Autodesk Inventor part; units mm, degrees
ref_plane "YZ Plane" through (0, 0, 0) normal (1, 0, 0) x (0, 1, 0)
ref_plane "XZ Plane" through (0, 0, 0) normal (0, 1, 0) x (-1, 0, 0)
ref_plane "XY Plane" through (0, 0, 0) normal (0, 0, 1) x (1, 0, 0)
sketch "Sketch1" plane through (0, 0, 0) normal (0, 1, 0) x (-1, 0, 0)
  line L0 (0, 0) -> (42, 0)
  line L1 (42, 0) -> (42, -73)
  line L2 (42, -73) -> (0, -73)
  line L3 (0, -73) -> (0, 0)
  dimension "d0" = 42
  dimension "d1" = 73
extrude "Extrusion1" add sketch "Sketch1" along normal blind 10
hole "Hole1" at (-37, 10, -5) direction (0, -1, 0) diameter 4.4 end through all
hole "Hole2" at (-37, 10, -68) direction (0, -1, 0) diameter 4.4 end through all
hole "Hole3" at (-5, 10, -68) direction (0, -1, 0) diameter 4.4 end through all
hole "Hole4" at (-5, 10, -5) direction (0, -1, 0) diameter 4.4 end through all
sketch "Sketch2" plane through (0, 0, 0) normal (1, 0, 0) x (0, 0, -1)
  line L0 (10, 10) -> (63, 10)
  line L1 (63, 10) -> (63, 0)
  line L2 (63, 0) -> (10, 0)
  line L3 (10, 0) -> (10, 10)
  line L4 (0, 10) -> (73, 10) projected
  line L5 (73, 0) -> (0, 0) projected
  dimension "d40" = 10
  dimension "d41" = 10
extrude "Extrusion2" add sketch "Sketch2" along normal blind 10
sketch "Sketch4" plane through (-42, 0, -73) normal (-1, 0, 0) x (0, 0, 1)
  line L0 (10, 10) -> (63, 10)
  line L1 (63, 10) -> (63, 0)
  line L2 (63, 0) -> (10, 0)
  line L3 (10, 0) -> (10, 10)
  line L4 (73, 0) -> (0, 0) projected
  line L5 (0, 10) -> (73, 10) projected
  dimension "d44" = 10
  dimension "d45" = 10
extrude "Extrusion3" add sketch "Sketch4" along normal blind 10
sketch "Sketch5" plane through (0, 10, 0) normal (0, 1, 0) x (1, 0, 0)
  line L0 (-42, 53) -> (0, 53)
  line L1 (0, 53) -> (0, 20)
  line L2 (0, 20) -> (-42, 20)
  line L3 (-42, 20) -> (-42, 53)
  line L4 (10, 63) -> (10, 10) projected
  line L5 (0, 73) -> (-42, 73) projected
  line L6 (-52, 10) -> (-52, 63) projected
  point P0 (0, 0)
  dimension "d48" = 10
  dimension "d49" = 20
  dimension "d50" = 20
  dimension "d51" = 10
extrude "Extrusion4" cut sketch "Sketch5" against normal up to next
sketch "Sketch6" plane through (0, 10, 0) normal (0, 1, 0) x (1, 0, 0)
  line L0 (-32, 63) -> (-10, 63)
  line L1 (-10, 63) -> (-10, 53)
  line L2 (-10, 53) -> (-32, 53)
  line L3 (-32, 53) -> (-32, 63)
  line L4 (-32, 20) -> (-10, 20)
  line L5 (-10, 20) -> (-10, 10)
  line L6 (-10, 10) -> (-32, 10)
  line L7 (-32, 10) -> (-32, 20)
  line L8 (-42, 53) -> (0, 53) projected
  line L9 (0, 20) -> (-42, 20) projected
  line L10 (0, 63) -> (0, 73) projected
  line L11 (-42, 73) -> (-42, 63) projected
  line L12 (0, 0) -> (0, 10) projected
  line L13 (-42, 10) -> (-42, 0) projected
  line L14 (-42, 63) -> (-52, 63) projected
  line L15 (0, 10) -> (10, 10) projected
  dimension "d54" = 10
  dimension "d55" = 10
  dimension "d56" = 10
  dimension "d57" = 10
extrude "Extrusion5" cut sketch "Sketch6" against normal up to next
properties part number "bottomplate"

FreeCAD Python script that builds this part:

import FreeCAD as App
import Part
import Sketcher

V = App.Vector
Q = App.Units.Quantity

doc = App.newDocument("Part")
body = doc.addObject("PartDesign::Body", "Body")

sketch1 = body.newObject("Sketcher::SketchObject", "Sketch")
sketch1.AttachmentSupport = (doc.getObject("XZ_Plane"), [""])
sketch1.MapMode = "FlatFace"
sketch1.addGeometry(Part.LineSegment(V(-42, 0, 0), V(0, 0, 0)), False)
sketch1.addGeometry(Part.LineSegment(V(0, 0, 0), V(0, -73, 0)), False)
sketch1.addGeometry(Part.LineSegment(V(0, -73, 0), V(-42, -73, 0)), False)
sketch1.addGeometry(Part.LineSegment(V(-42, -73, 0), V(-42, 0, 0)), False)
sketch1.addConstraint(Sketcher.Constraint("Coincident", 0, 2, 1, 1))
sketch1.addConstraint(Sketcher.Constraint("Coincident", 1, 2, 2, 1))
sketch1.addConstraint(Sketcher.Constraint("Coincident", 2, 2, 3, 1))
sketch1.addConstraint(Sketcher.Constraint("Coincident", 3, 2, 0, 1))
sketch1.addConstraint(Sketcher.Constraint("Horizontal", 0))
sketch1.addConstraint(Sketcher.Constraint("Vertical", 1))
sketch1.addConstraint(Sketcher.Constraint("Horizontal", 2))
sketch1.addConstraint(Sketcher.Constraint("Vertical", 3))
sketch1.addConstraint(Sketcher.Constraint("Coincident", 0, 2, -1, 1))
sketch1.addConstraint(Sketcher.Constraint("DistanceX", 0, 1, 0, 2, Q("42 mm")))
sketch1.addConstraint(Sketcher.Constraint("DistanceY", 1, 2, 1, 1, Q("73 mm")))
pad1 = body.newObject("PartDesign::Pad", "Pad")
pad1.Profile = sketch1
pad1.Length = 10
pad1.Reversed = True

sketch2 = body.newObject("Sketcher::SketchObject", "Sketch001")
sketch2.AttachmentSupport = (doc.getObject("XZ_Plane"), [""])
sketch2.MapMode = "FlatFace"
sketch2.AttachmentOffset = App.Placement(V(0, 0, -10), App.Rotation())
sketch2.addGeometry(Part.Circle(V(-37, -5, 0), V(0, 0, 1), 2.2), False)
sketch2.addConstraint(Sketcher.Constraint("Diameter", 0, Q("4.4 mm")))
sketch2.addConstraint(Sketcher.Constraint("DistanceX", 0, 3, -1, 1, Q("37 mm")))
sketch2.addConstraint(Sketcher.Constraint("DistanceY", 0, 3, -1, 1, Q("5 mm")))
doc.recompute()
hole = body.newObject("PartDesign::Hole", "Hole")
hole.Profile = sketch2
hole.ThreadType = "None"
hole.Diameter = 4.4
hole.DepthType = "ThroughAll"
hole.Reversed = True

sketch3 = body.newObject("Sketcher::SketchObject", "Sketch002")
sketch3.AttachmentSupport = (doc.getObject("XZ_Plane"), [""])
sketch3.MapMode = "FlatFace"
sketch3.AttachmentOffset = App.Placement(V(0, 0, -10), App.Rotation())
sketch3.addGeometry(Part.Circle(V(-37, -68, 0), V(0, 0, 1), 2.2), False)
sketch3.addConstraint(Sketcher.Constraint("Diameter", 0, Q("4.4 mm")))
sketch3.addConstraint(Sketcher.Constraint("DistanceX", 0, 3, -1, 1, Q("37 mm")))
sketch3.addConstraint(Sketcher.Constraint("DistanceY", 0, 3, -1, 1, Q("68 mm")))
doc.recompute()
hole2 = body.newObject("PartDesign::Hole", "Hole001")
hole2.Profile = sketch3
hole2.ThreadType = "None"
hole2.Diameter = 4.4
hole2.DepthType = "ThroughAll"
hole2.Reversed = True

sketch4 = body.newObject("Sketcher::SketchObject", "Sketch003")
sketch4.AttachmentSupport = (doc.getObject("XZ_Plane"), [""])
sketch4.MapMode = "FlatFace"
sketch4.AttachmentOffset = App.Placement(V(0, 0, -10), App.Rotation())
sketch4.addGeometry(Part.Circle(V(-5, -68, 0), V(0, 0, 1), 2.2), False)
sketch4.addConstraint(Sketcher.Constraint("Diameter", 0, Q("4.4 mm")))
sketch4.addConstraint(Sketcher.Constraint("DistanceX", 0, 3, -1, 1, Q("5 mm")))
sketch4.addConstraint(Sketcher.Constraint("DistanceY", 0, 3, -1, 1, Q("68 mm")))
doc.recompute()
hole3 = body.newObject("PartDesign::Hole", "Hole002")
hole3.Profile = sketch4
hole3.ThreadType = "None"
hole3.Diameter = 4.4
hole3.DepthType = "ThroughAll"
hole3.Reversed = True

sketch5 = body.newObject("Sketcher::SketchObject", "Sketch004")
sketch5.AttachmentSupport = (doc.getObject("XZ_Plane"), [""])
sketch5.MapMode = "FlatFace"
sketch5.AttachmentOffset = App.Placement(V(0, 0, -10), App.Rotation())
sketch5.addGeometry(Part.Circle(V(-5, -5, 0), V(0, 0, 1), 2.2), False)
sketch5.addConstraint(Sketcher.Constraint("Diameter", 0, Q("4.4 mm")))
sketch5.addConstraint(Sketcher.Constraint("DistanceX", 0, 3, -1, 1, Q("5 mm")))
sketch5.addConstraint(Sketcher.Constraint("DistanceY", 0, 3, -1, 1, Q("5 mm")))
doc.recompute()
hole4 = body.newObject("PartDesign::Hole", "Hole003")
hole4.Profile = sketch5
hole4.ThreadType = "None"
hole4.Diameter = 4.4
hole4.DepthType = "ThroughAll"
hole4.Reversed = True

sketch6 = body.newObject("Sketcher::SketchObject", "Sketch005")
sketch6.AttachmentSupport = (doc.getObject("YZ_Plane"), [""])
sketch6.MapMode = "FlatFace"
sketch6.addGeometry(Part.LineSegment(V(10, -63, 0), V(10, -10, 0)), False)
sketch6.addGeometry(Part.LineSegment(V(10, -10, 0), V(0, -10, 0)), False)
sketch6.addGeometry(Part.LineSegment(V(0, -10, 0), V(0, -63, 0)), False)
sketch6.addGeometry(Part.LineSegment(V(0, -63, 0), V(10, -63, 0)), False)
sketch6.addConstraint(Sketcher.Constraint("Coincident", 0, 2, 1, 1))
sketch6.addConstraint(Sketcher.Constraint("Coincident", 1, 2, 2, 1))
sketch6.addConstraint(Sketcher.Constraint("Coincident", 2, 2, 3, 1))
sketch6.addConstraint(Sketcher.Constraint("Coincident", 3, 2, 0, 1))
sketch6.addConstraint(Sketcher.Constraint("Vertical", 0))
sketch6.addConstraint(Sketcher.Constraint("Horizontal", 1))
sketch6.addConstraint(Sketcher.Constraint("Vertical", 2))
sketch6.addConstraint(Sketcher.Constraint("Horizontal", 3))
sketch6.addConstraint(Sketcher.Constraint("PointOnObject", 1, 2, -2))
sketch6.addConstraint(Sketcher.Constraint("DistanceX", 1, 2, 1, 1, Q("10 mm")))
sketch6.addConstraint(Sketcher.Constraint("DistanceY", 0, 2, -1, 1, Q("10 mm")))
sketch6.addConstraint(Sketcher.Constraint("DistanceY", 0, 1, 0, 2, Q("53 mm")))
pad2 = body.newObject("PartDesign::Pad", "Pad001")
pad2.Profile = sketch6
pad2.Length = 10

sketch7 = body.newObject("Sketcher::SketchObject", "Sketch006")
sketch7.AttachmentSupport = (doc.getObject("YZ_Plane"), [""])
sketch7.MapMode = "FlatFace"
sketch7.AttachmentOffset = App.Placement(V(0, 0, -42), App.Rotation())
sketch7.addGeometry(Part.LineSegment(V(10, -10, 0), V(10, -63, 0)), False)
sketch7.addGeometry(Part.LineSegment(V(10, -63, 0), V(0, -63, 0)), False)
sketch7.addGeometry(Part.LineSegment(V(0, -63, 0), V(0, -10, 0)), False)
sketch7.addGeometry(Part.LineSegment(V(0, -10, 0), V(10, -10, 0)), False)
sketch7.addConstraint(Sketcher.Constraint("Coincident", 0, 2, 1, 1))
sketch7.addConstraint(Sketcher.Constraint("Coincident", 1, 2, 2, 1))
sketch7.addConstraint(Sketcher.Constraint("Coincident", 2, 2, 3, 1))
sketch7.addConstraint(Sketcher.Constraint("Coincident", 3, 2, 0, 1))
sketch7.addConstraint(Sketcher.Constraint("Vertical", 0))
sketch7.addConstraint(Sketcher.Constraint("Horizontal", 1))
sketch7.addConstraint(Sketcher.Constraint("Vertical", 2))
sketch7.addConstraint(Sketcher.Constraint("Horizontal", 3))
sketch7.addConstraint(Sketcher.Constraint("PointOnObject", 1, 2, -2))
sketch7.addConstraint(Sketcher.Constraint("DistanceX", 1, 2, 1, 1, Q("10 mm")))
sketch7.addConstraint(Sketcher.Constraint("DistanceY", 2, 2, -1, 1, Q("10 mm")))
sketch7.addConstraint(Sketcher.Constraint("DistanceY", 0, 2, 0, 1, Q("53 mm")))
pad3 = body.newObject("PartDesign::Pad", "Pad002")
pad3.Profile = sketch7
pad3.Length = 10
pad3.Reversed = True

sketch8 = body.newObject("Sketcher::SketchObject", "Sketch007")
sketch8.AttachmentSupport = (doc.getObject("XZ_Plane"), [""])
sketch8.MapMode = "FlatFace"
sketch8.AttachmentOffset = App.Placement(V(0, 0, -10), App.Rotation())
sketch8.addGeometry(Part.LineSegment(V(0, -53, 0), V(-42, -53, 0)), False)
sketch8.addGeometry(Part.LineSegment(V(-42, -53, 0), V(-42, -20, 0)), False)
sketch8.addGeometry(Part.LineSegment(V(-42, -20, 0), V(0, -20, 0)), False)
sketch8.addGeometry(Part.LineSegment(V(0, -20, 0), V(0, -53, 0)), False)
sketch8.addConstraint(Sketcher.Constraint("Coincident", 0, 2, 1, 1))
sketch8.addConstraint(Sketcher.Constraint("Coincident", 1, 2, 2, 1))
sketch8.addConstraint(Sketcher.Constraint("Coincident", 2, 2, 3, 1))
sketch8.addConstraint(Sketcher.Constraint("Coincident", 3, 2, 0, 1))
sketch8.addConstraint(Sketcher.Constraint("Horizontal", 0))
sketch8.addConstraint(Sketcher.Constraint("Vertical", 1))
sketch8.addConstraint(Sketcher.Constraint("Horizontal", 2))
sketch8.addConstraint(Sketcher.Constraint("Vertical", 3))
sketch8.addConstraint(Sketcher.Constraint("PointOnObject", 2, 2, -2))
sketch8.addConstraint(Sketcher.Constraint("DistanceY", 1, 2, -1, 1, Q("20 mm")))
sketch8.addConstraint(Sketcher.Constraint("DistanceX", 0, 2, 0, 1, Q("42 mm")))
sketch8.addConstraint(Sketcher.Constraint("DistanceY", 1, 1, 1, 2, Q("33 mm")))
pocket1 = body.newObject("PartDesign::Pocket", "Pocket")
pocket1.Profile = sketch8
pocket1.Type = "UpToFirst"
pocket1.Reversed = True

sketch9 = body.newObject("Sketcher::SketchObject", "Sketch008")
sketch9.AttachmentSupport = (doc.getObject("XZ_Plane"), [""])
sketch9.MapMode = "FlatFace"
sketch9.AttachmentOffset = App.Placement(V(0, 0, -10), App.Rotation())
sketch9.addGeometry(Part.LineSegment(V(-10, -63, 0), V(-32, -63, 0)), False)
sketch9.addGeometry(Part.LineSegment(V(-32, -63, 0), V(-32, -53, 0)), False)
sketch9.addGeometry(Part.LineSegment(V(-32, -53, 0), V(-10, -53, 0)), False)
sketch9.addGeometry(Part.LineSegment(V(-10, -53, 0), V(-10, -63, 0)), False)
sketch9.addGeometry(Part.LineSegment(V(-10, -20, 0), V(-32, -20, 0)), False)
sketch9.addGeometry(Part.LineSegment(V(-32, -20, 0), V(-32, -10, 0)), False)
sketch9.addGeometry(Part.LineSegment(V(-32, -10, 0), V(-10, -10, 0)), False)
sketch9.addGeometry(Part.LineSegment(V(-10, -10, 0), V(-10, -20, 0)), False)
sketch9.addConstraint(Sketcher.Constraint("Coincident", 0, 2, 1, 1))
sketch9.addConstraint(Sketcher.Constraint("Coincident", 1, 2, 2, 1))
sketch9.addConstraint(Sketcher.Constraint("Coincident", 2, 2, 3, 1))
sketch9.addConstraint(Sketcher.Constraint("Coincident", 3, 2, 0, 1))
sketch9.addConstraint(Sketcher.Constraint("Coincident", 4, 2, 5, 1))
sketch9.addConstraint(Sketcher.Constraint("Coincident", 5, 2, 6, 1))
sketch9.addConstraint(Sketcher.Constraint("Coincident", 6, 2, 7, 1))
sketch9.addConstraint(Sketcher.Constraint("Coincident", 7, 2, 4, 1))
sketch9.addConstraint(Sketcher.Constraint("Horizontal", 0))
sketch9.addConstraint(Sketcher.Constraint("Vertical", 1))
sketch9.addConstraint(Sketcher.Constraint("Horizontal", 2))
sketch9.addConstraint(Sketcher.Constraint("Vertical", 3))
sketch9.addConstraint(Sketcher.Constraint("Horizontal", 4))
sketch9.addConstraint(Sketcher.Constraint("Vertical", 5))
sketch9.addConstraint(Sketcher.Constraint("Horizontal", 6))
sketch9.addConstraint(Sketcher.Constraint("Vertical", 7))
sketch9.addConstraint(Sketcher.Constraint("Vertical", 1, 2, 4, 2))
sketch9.addConstraint(Sketcher.Constraint("Vertical", 3, 2, 6, 2))
sketch9.addConstraint(Sketcher.Constraint("Equal", 3, 5))
sketch9.addConstraint(Sketcher.Constraint("DistanceY", 1, 1, 1, 2, Q("10 mm")))
sketch9.addConstraint(Sketcher.Constraint("DistanceX", 2, 2, -1, 1, Q("10 mm")))
sketch9.addConstraint(Sketcher.Constraint("DistanceY", 5, 2, -1, 1, Q("10 mm")))
sketch9.addConstraint(Sketcher.Constraint("DistanceX", 0, 2, 0, 1, Q("22 mm")))
sketch9.addConstraint(Sketcher.Constraint("DistanceY", 0, 2, -1, 1, Q("63 mm")))
pocket2 = body.newObject("PartDesign::Pocket", "Pocket001")
pocket2.Profile = sketch9
pocket2.Length = 10
pocket2.Reversed = True

doc.recompute()
